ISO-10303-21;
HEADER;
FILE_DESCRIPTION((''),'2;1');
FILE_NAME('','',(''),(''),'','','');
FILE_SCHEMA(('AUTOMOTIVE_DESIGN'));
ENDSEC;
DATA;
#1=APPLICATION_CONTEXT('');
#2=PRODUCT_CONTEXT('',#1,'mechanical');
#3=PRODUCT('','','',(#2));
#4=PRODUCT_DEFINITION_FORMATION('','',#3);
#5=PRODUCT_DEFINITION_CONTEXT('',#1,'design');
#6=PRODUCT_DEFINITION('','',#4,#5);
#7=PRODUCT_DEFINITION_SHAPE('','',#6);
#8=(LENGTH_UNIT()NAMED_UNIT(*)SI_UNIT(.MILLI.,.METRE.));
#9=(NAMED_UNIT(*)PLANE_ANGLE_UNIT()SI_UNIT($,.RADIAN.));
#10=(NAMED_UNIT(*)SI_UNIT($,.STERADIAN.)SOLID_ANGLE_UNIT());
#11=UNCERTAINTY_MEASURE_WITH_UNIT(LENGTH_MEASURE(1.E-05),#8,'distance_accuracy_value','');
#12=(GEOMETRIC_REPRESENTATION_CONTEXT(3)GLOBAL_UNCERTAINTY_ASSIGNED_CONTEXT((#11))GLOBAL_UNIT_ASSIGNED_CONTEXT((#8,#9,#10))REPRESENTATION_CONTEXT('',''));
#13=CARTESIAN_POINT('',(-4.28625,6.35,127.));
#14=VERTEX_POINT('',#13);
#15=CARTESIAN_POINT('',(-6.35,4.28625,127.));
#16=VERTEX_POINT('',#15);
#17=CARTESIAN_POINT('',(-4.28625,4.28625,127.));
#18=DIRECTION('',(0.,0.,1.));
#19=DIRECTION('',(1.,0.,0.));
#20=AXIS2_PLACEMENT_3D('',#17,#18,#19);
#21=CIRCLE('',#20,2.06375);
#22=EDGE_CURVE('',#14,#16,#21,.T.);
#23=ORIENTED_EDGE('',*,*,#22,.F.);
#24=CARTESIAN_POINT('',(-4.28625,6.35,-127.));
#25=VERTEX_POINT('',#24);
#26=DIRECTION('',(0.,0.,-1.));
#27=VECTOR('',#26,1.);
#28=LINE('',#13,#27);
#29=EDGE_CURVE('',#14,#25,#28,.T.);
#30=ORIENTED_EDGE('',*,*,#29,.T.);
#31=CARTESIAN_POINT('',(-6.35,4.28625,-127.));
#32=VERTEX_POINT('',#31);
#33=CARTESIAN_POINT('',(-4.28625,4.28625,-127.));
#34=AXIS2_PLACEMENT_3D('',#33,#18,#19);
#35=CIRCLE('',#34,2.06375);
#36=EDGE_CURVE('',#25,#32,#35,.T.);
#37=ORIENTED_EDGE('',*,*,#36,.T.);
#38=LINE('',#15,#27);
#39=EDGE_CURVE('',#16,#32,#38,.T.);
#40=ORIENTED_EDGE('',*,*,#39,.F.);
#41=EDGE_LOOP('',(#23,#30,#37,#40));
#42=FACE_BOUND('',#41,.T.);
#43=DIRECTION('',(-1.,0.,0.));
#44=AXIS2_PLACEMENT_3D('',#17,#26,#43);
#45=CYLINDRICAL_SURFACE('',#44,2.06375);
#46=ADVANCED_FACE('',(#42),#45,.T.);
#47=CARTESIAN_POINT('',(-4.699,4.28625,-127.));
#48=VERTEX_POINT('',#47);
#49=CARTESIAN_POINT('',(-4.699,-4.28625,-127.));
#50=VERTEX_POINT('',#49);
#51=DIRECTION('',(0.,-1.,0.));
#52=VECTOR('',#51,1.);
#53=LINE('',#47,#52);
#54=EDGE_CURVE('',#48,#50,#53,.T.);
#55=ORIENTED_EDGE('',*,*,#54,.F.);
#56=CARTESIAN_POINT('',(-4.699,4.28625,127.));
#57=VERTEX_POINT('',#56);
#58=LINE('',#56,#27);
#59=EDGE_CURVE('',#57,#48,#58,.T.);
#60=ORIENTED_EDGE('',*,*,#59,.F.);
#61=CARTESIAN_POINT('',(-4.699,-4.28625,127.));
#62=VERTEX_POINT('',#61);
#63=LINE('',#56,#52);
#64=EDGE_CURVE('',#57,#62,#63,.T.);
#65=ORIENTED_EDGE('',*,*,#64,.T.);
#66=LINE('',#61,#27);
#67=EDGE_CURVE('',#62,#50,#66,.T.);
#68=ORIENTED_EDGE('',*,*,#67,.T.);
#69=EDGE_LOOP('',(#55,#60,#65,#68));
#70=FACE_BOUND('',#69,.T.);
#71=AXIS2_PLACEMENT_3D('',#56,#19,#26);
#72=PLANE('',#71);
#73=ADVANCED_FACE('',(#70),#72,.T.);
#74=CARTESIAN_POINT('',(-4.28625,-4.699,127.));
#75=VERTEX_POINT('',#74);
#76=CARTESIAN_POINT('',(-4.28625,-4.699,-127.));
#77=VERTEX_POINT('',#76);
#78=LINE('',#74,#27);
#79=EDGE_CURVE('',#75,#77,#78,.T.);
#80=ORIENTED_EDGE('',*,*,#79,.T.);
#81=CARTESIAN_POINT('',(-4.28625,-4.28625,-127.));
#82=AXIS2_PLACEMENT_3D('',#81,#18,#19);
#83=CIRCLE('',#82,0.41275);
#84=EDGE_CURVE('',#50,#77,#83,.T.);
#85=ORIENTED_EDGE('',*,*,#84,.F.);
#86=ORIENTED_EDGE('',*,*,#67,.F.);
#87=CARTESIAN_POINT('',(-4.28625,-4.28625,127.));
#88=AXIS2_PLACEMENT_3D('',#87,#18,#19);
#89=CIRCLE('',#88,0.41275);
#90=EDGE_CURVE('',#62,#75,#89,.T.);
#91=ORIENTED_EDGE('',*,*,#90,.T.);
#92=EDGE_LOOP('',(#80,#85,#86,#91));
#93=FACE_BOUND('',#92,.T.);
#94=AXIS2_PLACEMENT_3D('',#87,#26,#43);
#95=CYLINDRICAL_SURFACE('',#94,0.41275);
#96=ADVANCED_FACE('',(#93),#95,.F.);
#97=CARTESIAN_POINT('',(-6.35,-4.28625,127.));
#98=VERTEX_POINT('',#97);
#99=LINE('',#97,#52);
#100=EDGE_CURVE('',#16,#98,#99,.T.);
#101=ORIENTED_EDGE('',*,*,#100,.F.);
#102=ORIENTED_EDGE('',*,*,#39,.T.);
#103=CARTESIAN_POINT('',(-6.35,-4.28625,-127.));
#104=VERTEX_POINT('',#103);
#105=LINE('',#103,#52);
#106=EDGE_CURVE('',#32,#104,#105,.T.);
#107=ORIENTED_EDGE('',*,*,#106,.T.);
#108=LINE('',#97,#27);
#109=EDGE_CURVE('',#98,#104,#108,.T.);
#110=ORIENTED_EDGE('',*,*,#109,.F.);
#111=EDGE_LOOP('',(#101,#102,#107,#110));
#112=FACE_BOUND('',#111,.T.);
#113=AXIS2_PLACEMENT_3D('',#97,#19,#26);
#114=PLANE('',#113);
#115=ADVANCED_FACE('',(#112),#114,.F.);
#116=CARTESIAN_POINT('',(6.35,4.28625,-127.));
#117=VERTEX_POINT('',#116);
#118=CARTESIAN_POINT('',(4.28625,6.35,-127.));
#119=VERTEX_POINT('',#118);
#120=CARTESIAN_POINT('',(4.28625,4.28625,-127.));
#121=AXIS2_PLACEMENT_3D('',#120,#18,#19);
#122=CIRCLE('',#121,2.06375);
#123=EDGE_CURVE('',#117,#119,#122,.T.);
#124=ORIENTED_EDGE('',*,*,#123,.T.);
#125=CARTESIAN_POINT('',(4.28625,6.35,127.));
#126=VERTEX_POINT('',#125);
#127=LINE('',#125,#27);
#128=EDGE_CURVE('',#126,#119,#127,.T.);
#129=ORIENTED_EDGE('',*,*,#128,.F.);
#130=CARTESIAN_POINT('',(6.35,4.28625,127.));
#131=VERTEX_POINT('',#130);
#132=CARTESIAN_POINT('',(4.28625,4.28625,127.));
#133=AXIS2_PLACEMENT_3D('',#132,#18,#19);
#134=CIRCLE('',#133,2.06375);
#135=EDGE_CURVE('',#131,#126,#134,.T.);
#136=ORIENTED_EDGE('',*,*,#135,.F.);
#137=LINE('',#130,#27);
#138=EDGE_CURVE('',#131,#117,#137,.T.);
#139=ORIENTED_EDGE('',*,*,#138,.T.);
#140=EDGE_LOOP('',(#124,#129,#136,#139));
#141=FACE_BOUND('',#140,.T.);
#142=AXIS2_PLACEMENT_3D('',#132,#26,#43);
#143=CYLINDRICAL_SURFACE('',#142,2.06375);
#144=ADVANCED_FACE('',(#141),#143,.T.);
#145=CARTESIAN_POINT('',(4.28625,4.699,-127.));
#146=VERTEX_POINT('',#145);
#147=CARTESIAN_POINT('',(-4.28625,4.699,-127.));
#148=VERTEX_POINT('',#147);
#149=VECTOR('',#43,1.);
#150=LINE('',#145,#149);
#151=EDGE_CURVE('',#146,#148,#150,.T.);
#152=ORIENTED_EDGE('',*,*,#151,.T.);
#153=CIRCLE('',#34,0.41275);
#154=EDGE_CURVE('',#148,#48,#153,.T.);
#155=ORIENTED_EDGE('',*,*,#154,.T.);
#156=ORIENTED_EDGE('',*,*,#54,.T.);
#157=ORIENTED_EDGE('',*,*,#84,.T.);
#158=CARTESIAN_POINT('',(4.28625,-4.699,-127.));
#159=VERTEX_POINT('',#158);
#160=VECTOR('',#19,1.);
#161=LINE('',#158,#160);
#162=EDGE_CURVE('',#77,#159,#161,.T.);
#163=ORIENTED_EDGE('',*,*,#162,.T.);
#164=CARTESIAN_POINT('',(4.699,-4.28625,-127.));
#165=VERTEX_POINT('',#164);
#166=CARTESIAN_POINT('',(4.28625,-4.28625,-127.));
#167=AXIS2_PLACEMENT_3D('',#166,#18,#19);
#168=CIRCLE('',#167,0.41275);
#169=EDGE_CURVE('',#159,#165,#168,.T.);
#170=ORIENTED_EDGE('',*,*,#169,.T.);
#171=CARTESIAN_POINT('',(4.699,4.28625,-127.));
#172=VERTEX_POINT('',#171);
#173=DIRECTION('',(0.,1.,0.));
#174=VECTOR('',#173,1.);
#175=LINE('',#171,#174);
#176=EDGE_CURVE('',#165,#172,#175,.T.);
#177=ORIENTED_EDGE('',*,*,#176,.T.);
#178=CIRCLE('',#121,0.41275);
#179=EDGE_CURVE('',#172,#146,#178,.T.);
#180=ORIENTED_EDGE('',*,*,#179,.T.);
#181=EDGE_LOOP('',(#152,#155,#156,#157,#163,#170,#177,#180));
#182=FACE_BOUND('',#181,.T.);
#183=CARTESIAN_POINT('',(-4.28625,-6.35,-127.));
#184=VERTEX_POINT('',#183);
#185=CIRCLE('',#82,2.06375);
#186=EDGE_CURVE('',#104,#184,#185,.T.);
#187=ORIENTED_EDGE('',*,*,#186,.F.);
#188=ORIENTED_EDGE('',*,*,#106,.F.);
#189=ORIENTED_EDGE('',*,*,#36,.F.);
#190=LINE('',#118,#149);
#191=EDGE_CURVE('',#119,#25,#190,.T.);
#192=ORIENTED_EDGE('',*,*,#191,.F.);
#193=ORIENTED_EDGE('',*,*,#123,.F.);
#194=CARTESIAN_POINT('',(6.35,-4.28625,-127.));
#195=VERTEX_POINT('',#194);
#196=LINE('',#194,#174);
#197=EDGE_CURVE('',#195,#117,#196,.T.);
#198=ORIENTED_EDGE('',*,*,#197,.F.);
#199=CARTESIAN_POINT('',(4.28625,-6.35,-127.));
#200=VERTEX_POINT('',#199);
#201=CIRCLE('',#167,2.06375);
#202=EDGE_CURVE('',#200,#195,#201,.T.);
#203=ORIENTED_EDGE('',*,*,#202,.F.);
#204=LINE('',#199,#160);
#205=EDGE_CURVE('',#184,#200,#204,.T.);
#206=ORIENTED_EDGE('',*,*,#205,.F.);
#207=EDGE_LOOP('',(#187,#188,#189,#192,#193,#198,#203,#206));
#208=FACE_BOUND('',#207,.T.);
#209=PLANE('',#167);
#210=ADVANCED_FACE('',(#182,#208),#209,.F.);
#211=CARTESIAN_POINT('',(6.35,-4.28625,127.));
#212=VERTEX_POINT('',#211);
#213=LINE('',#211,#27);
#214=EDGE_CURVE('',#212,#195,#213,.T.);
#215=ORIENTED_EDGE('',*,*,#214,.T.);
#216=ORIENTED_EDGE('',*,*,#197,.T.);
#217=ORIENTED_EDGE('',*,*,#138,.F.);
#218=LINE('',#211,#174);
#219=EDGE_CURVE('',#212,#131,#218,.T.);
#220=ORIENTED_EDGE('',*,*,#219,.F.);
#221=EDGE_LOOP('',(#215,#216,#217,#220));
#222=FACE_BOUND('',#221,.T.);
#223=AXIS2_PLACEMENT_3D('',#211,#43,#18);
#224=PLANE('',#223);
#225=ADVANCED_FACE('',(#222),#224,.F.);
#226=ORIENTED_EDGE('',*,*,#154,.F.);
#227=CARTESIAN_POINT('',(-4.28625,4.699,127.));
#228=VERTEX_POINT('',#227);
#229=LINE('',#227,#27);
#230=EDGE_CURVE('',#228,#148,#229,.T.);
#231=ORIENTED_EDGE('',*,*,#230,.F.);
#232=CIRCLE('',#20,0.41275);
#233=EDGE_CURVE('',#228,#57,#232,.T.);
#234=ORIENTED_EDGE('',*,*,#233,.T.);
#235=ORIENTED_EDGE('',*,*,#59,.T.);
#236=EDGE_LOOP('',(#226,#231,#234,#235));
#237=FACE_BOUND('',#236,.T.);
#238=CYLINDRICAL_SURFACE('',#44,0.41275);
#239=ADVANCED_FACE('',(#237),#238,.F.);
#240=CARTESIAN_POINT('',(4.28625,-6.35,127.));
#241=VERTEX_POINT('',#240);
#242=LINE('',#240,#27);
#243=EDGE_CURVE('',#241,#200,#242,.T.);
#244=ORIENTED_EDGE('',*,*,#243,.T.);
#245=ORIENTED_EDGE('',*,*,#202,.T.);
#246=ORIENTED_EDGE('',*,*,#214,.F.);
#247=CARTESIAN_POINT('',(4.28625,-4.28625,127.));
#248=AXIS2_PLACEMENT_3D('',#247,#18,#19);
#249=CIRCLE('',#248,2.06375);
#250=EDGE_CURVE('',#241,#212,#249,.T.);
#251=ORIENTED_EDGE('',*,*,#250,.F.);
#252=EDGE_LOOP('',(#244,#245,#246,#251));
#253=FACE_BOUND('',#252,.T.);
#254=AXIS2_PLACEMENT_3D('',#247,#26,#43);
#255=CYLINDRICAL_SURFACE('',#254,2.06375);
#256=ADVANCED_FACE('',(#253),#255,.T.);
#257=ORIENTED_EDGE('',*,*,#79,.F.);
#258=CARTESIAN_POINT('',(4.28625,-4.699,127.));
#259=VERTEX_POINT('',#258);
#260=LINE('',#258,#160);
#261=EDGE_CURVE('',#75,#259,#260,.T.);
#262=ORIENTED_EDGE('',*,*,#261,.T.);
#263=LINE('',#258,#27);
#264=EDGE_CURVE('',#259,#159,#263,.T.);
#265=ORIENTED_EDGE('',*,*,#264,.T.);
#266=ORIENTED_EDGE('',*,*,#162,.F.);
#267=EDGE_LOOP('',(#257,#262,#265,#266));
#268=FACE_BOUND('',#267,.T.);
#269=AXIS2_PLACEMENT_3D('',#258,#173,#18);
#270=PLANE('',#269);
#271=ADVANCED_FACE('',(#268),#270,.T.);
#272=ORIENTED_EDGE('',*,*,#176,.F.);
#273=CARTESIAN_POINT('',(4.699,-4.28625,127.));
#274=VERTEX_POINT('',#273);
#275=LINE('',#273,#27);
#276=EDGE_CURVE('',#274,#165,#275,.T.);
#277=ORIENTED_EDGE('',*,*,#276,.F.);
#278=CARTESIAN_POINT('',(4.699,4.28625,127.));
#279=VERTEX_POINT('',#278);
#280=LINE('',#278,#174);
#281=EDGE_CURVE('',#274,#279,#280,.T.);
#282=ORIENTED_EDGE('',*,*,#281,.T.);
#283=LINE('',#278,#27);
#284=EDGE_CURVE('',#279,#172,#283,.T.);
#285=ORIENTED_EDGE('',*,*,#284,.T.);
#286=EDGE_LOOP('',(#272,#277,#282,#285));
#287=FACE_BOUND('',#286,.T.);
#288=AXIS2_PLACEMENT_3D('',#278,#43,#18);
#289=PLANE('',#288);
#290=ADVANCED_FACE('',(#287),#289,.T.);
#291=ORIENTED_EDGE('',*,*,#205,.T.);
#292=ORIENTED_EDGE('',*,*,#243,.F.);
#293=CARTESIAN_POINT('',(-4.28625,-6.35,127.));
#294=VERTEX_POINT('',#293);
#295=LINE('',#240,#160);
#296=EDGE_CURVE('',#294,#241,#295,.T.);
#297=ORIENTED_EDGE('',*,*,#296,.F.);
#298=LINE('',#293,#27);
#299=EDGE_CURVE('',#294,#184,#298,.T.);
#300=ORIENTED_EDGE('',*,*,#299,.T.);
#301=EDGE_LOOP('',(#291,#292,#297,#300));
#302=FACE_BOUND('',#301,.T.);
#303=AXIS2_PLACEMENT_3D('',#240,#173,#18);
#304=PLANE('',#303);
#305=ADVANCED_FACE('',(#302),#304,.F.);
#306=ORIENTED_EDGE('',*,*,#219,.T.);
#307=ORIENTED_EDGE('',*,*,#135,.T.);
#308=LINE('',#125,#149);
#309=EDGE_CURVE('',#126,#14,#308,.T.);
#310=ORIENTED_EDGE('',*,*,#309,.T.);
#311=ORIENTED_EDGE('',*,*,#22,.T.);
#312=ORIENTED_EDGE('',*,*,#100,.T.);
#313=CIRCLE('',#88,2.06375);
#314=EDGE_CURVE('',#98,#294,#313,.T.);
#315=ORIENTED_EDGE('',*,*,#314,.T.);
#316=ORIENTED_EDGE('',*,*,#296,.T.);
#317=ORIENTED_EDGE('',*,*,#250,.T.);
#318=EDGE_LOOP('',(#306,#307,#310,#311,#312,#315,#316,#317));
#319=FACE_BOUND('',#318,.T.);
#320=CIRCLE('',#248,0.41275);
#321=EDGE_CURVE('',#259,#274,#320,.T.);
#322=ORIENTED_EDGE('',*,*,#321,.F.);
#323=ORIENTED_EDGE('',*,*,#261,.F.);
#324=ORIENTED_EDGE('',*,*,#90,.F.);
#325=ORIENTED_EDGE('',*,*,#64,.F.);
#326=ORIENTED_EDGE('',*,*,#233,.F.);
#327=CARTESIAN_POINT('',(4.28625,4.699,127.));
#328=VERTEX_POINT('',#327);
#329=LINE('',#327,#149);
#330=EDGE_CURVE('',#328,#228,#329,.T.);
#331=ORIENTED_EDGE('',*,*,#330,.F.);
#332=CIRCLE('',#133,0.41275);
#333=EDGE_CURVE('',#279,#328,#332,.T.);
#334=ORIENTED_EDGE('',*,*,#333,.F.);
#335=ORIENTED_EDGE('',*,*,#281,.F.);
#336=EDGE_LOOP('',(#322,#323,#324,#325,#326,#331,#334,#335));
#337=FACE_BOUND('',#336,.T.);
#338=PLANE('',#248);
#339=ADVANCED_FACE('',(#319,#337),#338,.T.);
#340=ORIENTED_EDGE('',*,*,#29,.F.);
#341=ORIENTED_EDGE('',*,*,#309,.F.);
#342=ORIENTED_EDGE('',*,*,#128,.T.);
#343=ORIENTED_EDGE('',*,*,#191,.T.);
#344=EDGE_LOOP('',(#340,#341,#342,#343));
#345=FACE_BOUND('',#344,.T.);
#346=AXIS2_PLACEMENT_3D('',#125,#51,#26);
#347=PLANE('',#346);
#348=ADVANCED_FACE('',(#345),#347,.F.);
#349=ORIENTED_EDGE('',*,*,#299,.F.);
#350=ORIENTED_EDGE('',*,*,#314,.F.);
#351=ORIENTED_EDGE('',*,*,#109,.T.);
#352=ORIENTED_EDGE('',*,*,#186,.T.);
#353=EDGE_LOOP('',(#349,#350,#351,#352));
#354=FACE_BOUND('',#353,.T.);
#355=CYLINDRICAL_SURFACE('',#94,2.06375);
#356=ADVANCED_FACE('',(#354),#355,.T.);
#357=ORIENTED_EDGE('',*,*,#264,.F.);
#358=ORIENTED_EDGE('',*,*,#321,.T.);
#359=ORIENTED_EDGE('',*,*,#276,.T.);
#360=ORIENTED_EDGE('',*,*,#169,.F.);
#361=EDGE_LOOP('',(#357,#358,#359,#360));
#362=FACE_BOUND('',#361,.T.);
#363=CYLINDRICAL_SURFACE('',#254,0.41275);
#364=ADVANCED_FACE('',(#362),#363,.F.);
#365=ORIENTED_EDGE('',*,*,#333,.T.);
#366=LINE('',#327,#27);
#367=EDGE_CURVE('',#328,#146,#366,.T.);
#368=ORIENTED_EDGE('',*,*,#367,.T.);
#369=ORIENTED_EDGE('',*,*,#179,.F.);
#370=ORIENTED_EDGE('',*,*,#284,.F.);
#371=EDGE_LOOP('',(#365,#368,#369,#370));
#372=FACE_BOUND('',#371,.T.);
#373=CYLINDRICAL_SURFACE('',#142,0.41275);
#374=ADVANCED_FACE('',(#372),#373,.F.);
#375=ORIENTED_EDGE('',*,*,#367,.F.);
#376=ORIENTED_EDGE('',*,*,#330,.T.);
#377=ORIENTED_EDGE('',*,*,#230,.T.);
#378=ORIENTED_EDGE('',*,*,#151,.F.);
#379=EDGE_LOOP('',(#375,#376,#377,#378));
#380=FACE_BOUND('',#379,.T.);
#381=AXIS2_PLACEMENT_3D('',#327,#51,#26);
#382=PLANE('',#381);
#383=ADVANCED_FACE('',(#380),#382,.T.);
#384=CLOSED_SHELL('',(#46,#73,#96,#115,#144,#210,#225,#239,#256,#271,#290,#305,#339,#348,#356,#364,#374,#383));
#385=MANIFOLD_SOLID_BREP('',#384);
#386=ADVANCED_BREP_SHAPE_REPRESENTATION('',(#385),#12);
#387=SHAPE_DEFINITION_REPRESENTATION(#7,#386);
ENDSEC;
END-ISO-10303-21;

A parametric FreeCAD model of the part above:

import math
import FreeCAD as App
import Part
import Sketcher
from FreeCAD import Vector
Q = App.Units.Quantity

doc = App.newDocument("Part")
body = doc.addObject("PartDesign::Body", "Body")

# Sketch on XY plane
sketch1 = body.newObject("Sketcher::SketchObject", "Sketch")
sketch1.AttachmentSupport = (doc.getObject("XY_Plane"), [""])
sketch1.MapMode = "FlatFace"
sketch1.addGeometry(Part.LineSegment(Vector(6.35, -4.28625, 0), Vector(6.35, 4.28625, 0)), False)
sketch1.addGeometry(Part.ArcOfCircle(Part.Circle(Vector(4.28625, 4.28625, 0), Vector(0, 0, 1), 2.06375), math.radians(0), math.radians(90)), False)
sketch1.addGeometry(Part.LineSegment(Vector(4.28625, 6.35, 0), Vector(-4.28625, 6.35, 0)), False)
sketch1.addGeometry(Part.ArcOfCircle(Part.Circle(Vector(-4.28625, 4.28625, 0), Vector(0, 0, 1), 2.06375), math.radians(90), math.radians(180)), False)
sketch1.addGeometry(Part.LineSegment(Vector(-6.35, 4.28625, 0), Vector(-6.35, -4.28625, 0)), False)
sketch1.addGeometry(Part.ArcOfCircle(Part.Circle(Vector(-4.28625, -4.28625, 0), Vector(0, 0, 1), 2.06375), math.radians(180), math.radians(270)), False)
sketch1.addGeometry(Part.LineSegment(Vector(-4.28625, -6.35, 0), Vector(4.28625, -6.35, 0)), False)
sketch1.addGeometry(Part.ArcOfCircle(Part.Circle(Vector(4.28625, -4.28625, 0), Vector(0, 0, 1), 2.06375), math.radians(-90), math.radians(0)), False)
sketch1.addGeometry(Part.ArcOfCircle(Part.Circle(Vector(4.28625, 4.28625, 0), Vector(0, 0, 1), 0.41275), math.radians(0), math.radians(90)), False)
sketch1.addGeometry(Part.LineSegment(Vector(4.699, 4.28625, 0), Vector(4.699, -4.28625, 0)), False)
sketch1.addGeometry(Part.ArcOfCircle(Part.Circle(Vector(4.28625, -4.28625, 0), Vector(0, 0, 1), 0.41275), math.radians(-90), math.radians(0)), False)
sketch1.addGeometry(Part.LineSegment(Vector(4.28625, -4.699, 0), Vector(-4.28625, -4.699, 0)), False)
sketch1.addGeometry(Part.ArcOfCircle(Part.Circle(Vector(-4.28625, -4.28625, 0), Vector(0, 0, 1), 0.41275), math.radians(180), math.radians(270)), False)
sketch1.addGeometry(Part.LineSegment(Vector(-4.699, -4.28625, 0), Vector(-4.699, 4.28625, 0)), False)
sketch1.addGeometry(Part.ArcOfCircle(Part.Circle(Vector(-4.28625, 4.28625, 0), Vector(0, 0, 1), 0.41275), math.radians(90), math.radians(180)), False)
sketch1.addGeometry(Part.LineSegment(Vector(-4.28625, 4.699, 0), Vector(4.28625, 4.699, 0)), False)
sketch1.addConstraint(Sketcher.Constraint("Tangent", 0, 2, 1, 1))
sketch1.addConstraint(Sketcher.Constraint("Tangent", 1, 2, 2, 1))
sketch1.addConstraint(Sketcher.Constraint("Tangent", 2, 2, 3, 1))
sketch1.addConstraint(Sketcher.Constraint("Tangent", 3, 2, 4, 1))
sketch1.addConstraint(Sketcher.Constraint("Tangent", 4, 2, 5, 1))
sketch1.addConstraint(Sketcher.Constraint("Tangent", 5, 2, 6, 1))
sketch1.addConstraint(Sketcher.Constraint("Tangent", 6, 2, 7, 1))
sketch1.addConstraint(Sketcher.Constraint("Tangent", 7, 2, 0, 1))
sketch1.addConstraint(Sketcher.Constraint("Tangent", 8, 1, 9, 1))
sketch1.addConstraint(Sketcher.Constraint("Tangent", 9, 2, 10, 2))
sketch1.addConstraint(Sketcher.Constraint("Tangent", 10, 1, 11, 1))
sketch1.addConstraint(Sketcher.Constraint("Tangent", 11, 2, 12, 2))
sketch1.addConstraint(Sketcher.Constraint("Tangent", 12, 1, 13, 1))
sketch1.addConstraint(Sketcher.Constraint("Tangent", 13, 2, 14, 2))
sketch1.addConstraint(Sketcher.Constraint("Tangent", 14, 1, 15, 1))
sketch1.addConstraint(Sketcher.Constraint("Tangent", 15, 2, 8, 2))
sketch1.addConstraint(Sketcher.Constraint("Vertical", 0))
sketch1.addConstraint(Sketcher.Constraint("Horizontal", 2))
sketch1.addConstraint(Sketcher.Constraint("Vertical", 4))
sketch1.addConstraint(Sketcher.Constraint("Horizontal", 6))
sketch1.addConstraint(Sketcher.Constraint("Vertical", 9))
sketch1.addConstraint(Sketcher.Constraint("Horizontal", 11))
sketch1.addConstraint(Sketcher.Constraint("Vertical", 13))
sketch1.addConstraint(Sketcher.Constraint("Horizontal", 15))
sketch1.addConstraint(Sketcher.Constraint("Coincident", 8, 3, 1, 3))
sketch1.addConstraint(Sketcher.Constraint("Coincident", 10, 3, 7, 3))
sketch1.addConstraint(Sketcher.Constraint("Coincident", 12, 3, 5, 3))
sketch1.addConstraint(Sketcher.Constraint("Equal", 1, 3))
sketch1.addConstraint(Sketcher.Constraint("Equal", 3, 5))
sketch1.addConstraint(Sketcher.Constraint("Equal", 5, 7))
sketch1.addConstraint(Sketcher.Constraint("Equal", 12, 14))
sketch1.addConstraint(Sketcher.Constraint("Symmetric", 1, 3, 5, 3, -1, 1))
sketch1.addConstraint(Sketcher.Constraint("Equal", 15, 0))
sketch1.addConstraint(Sketcher.Constraint("DistanceX", -1, 1, 0, 2, Q("0.25 in")))
sketch1.addConstraint(Sketcher.Constraint("DistanceX", 2, 2, 2, 1, Q("0.3375 in")))
sketch1.addConstraint(Sketcher.Constraint("DistanceX", -1, 1, 8, 1, Q("0.185 in")))
pad1 = body.newObject("PartDesign::Pad", "Pad")
pad1.Profile = sketch1
pad1.Length = Q("10 in")
pad1.Midplane = True

doc.recompute()
